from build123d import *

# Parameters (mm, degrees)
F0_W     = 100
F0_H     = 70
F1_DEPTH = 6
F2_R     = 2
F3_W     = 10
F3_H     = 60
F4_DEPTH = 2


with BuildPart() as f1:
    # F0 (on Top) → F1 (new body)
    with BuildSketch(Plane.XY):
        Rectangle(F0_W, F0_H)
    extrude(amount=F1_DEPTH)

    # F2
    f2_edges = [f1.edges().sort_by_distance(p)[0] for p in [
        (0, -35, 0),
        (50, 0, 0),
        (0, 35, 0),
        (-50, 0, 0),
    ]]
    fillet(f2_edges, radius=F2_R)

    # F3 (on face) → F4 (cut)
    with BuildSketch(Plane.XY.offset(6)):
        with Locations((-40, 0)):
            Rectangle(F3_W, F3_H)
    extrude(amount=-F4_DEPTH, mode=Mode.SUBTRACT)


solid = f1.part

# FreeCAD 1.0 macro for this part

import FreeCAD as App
import Part
import Sketcher


def edges_at(feature, points):
    """Names of the edges that pass closest to the given points."""
    edges = feature.Shape.Edges
    near = lambda p: min(range(len(edges)), key=lambda i: edges[i].distToShape(Part.Vertex(*p))[0])
    return sorted({f"Edge{near(p) + 1}" for p in points})

doc = App.newDocument("Part")
body = doc.addObject("PartDesign::Body", "Body")

# Sketch on XY plane
sketch1 = body.newObject("Sketcher::SketchObject", "Sketch")
sketch1.AttachmentSupport = (doc.getObject("XY_Plane"), [""])
sketch1.MapMode = "FlatFace"
sketch1.addGeometry([
    Part.LineSegment(App.Vector(-50, 35, 0), App.Vector(-50, -35, 0)),
    Part.LineSegment(App.Vector(-50, -35, 0), App.Vector(50, -35, 0)),
    Part.LineSegment(App.Vector(50, -35, 0), App.Vector(50, 35, 0)),
    Part.LineSegment(App.Vector(50, 35, 0), App.Vector(-50, 35, 0)),
], False)
sketch1.addConstraint([
    Sketcher.Constraint("Coincident", 0, 2, 1, 1),
    Sketcher.Constraint("Coincident", 1, 2, 2, 1),
    Sketcher.Constraint("Coincident", 2, 2, 3, 1),
    Sketcher.Constraint("Coincident", 3, 2, 0, 1),
    Sketcher.Constraint("Vertical", 0),
    Sketcher.Constraint("Horizontal", 1),
    Sketcher.Constraint("Vertical", 2),
    Sketcher.Constraint("Horizontal", 3),
    Sketcher.Constraint("Symmetric", 0, 2, 2, 2, -1, 1),
    Sketcher.Constraint("DistanceX", 1, 1, 1, 2, 100.0),
    Sketcher.Constraint("DistanceY", 0, 2, 0, 1, 70.0),
])
pad1 = body.newObject("PartDesign::Pad", "Pad")
pad1.Profile = sketch1
pad1.Length = 6
doc.recompute()

fillet = body.newObject("PartDesign::Fillet", "Fillet")
fillet.Base = (pad1, edges_at(pad1, [
    (0, -35, 0),
    (50, 0, 0),
    (0, 35, 0),
    (-50, 0, 0),
]))
fillet.Radius = 2

# Sketch on XY plane
sketch2 = body.newObject("Sketcher::SketchObject", "Sketch001")
sketch2.AttachmentSupport = (doc.getObject("XY_Plane"), [""])
sketch2.MapMode = "FlatFace"
sketch2.AttachmentOffset = App.Placement(App.Vector(0, 0, 6), App.Rotation())
sketch2.addGeometry([
    Part.LineSegment(App.Vector(-45, 30, 0), App.Vector(-45, -30, 0)),
    Part.LineSegment(App.Vector(-45, -30, 0), App.Vector(-35, -30, 0)),
    Part.LineSegment(App.Vector(-35, -30, 0), App.Vector(-35, 30, 0)),
    Part.LineSegment(App.Vector(-35, 30, 0), App.Vector(-45, 30, 0)),
], False)
sketch2.addConstraint([
    Sketcher.Constraint("Coincident", 0, 2, 1, 1),
    Sketcher.Constraint("Coincident", 1, 2, 2, 1),
    Sketcher.Constraint("Coincident", 2, 2, 3, 1),
    Sketcher.Constraint("Coincident", 3, 2, 0, 1),
    Sketcher.Constraint("Vertical", 0),
    Sketcher.Constraint("Horizontal", 1),
    Sketcher.Constraint("Vertical", 2),
    Sketcher.Constraint("Horizontal", 3),
    Sketcher.Constraint("DistanceX", 1, 1, 1, 2, 10.0),
    Sketcher.Constraint("DistanceY", 0, 2, 0, 1, 60.0),
    Sketcher.Constraint("DistanceX", 0, 2, -1, 1, 45.0),
    Sketcher.Constraint("DistanceY", 0, 2, -1, 1, 30.0),
])
pocket1 = body.newObject("PartDesign::Pocket", "Pocket")
pocket1.Profile = sketch2
pocket1.Length = 2

doc.recompute()
